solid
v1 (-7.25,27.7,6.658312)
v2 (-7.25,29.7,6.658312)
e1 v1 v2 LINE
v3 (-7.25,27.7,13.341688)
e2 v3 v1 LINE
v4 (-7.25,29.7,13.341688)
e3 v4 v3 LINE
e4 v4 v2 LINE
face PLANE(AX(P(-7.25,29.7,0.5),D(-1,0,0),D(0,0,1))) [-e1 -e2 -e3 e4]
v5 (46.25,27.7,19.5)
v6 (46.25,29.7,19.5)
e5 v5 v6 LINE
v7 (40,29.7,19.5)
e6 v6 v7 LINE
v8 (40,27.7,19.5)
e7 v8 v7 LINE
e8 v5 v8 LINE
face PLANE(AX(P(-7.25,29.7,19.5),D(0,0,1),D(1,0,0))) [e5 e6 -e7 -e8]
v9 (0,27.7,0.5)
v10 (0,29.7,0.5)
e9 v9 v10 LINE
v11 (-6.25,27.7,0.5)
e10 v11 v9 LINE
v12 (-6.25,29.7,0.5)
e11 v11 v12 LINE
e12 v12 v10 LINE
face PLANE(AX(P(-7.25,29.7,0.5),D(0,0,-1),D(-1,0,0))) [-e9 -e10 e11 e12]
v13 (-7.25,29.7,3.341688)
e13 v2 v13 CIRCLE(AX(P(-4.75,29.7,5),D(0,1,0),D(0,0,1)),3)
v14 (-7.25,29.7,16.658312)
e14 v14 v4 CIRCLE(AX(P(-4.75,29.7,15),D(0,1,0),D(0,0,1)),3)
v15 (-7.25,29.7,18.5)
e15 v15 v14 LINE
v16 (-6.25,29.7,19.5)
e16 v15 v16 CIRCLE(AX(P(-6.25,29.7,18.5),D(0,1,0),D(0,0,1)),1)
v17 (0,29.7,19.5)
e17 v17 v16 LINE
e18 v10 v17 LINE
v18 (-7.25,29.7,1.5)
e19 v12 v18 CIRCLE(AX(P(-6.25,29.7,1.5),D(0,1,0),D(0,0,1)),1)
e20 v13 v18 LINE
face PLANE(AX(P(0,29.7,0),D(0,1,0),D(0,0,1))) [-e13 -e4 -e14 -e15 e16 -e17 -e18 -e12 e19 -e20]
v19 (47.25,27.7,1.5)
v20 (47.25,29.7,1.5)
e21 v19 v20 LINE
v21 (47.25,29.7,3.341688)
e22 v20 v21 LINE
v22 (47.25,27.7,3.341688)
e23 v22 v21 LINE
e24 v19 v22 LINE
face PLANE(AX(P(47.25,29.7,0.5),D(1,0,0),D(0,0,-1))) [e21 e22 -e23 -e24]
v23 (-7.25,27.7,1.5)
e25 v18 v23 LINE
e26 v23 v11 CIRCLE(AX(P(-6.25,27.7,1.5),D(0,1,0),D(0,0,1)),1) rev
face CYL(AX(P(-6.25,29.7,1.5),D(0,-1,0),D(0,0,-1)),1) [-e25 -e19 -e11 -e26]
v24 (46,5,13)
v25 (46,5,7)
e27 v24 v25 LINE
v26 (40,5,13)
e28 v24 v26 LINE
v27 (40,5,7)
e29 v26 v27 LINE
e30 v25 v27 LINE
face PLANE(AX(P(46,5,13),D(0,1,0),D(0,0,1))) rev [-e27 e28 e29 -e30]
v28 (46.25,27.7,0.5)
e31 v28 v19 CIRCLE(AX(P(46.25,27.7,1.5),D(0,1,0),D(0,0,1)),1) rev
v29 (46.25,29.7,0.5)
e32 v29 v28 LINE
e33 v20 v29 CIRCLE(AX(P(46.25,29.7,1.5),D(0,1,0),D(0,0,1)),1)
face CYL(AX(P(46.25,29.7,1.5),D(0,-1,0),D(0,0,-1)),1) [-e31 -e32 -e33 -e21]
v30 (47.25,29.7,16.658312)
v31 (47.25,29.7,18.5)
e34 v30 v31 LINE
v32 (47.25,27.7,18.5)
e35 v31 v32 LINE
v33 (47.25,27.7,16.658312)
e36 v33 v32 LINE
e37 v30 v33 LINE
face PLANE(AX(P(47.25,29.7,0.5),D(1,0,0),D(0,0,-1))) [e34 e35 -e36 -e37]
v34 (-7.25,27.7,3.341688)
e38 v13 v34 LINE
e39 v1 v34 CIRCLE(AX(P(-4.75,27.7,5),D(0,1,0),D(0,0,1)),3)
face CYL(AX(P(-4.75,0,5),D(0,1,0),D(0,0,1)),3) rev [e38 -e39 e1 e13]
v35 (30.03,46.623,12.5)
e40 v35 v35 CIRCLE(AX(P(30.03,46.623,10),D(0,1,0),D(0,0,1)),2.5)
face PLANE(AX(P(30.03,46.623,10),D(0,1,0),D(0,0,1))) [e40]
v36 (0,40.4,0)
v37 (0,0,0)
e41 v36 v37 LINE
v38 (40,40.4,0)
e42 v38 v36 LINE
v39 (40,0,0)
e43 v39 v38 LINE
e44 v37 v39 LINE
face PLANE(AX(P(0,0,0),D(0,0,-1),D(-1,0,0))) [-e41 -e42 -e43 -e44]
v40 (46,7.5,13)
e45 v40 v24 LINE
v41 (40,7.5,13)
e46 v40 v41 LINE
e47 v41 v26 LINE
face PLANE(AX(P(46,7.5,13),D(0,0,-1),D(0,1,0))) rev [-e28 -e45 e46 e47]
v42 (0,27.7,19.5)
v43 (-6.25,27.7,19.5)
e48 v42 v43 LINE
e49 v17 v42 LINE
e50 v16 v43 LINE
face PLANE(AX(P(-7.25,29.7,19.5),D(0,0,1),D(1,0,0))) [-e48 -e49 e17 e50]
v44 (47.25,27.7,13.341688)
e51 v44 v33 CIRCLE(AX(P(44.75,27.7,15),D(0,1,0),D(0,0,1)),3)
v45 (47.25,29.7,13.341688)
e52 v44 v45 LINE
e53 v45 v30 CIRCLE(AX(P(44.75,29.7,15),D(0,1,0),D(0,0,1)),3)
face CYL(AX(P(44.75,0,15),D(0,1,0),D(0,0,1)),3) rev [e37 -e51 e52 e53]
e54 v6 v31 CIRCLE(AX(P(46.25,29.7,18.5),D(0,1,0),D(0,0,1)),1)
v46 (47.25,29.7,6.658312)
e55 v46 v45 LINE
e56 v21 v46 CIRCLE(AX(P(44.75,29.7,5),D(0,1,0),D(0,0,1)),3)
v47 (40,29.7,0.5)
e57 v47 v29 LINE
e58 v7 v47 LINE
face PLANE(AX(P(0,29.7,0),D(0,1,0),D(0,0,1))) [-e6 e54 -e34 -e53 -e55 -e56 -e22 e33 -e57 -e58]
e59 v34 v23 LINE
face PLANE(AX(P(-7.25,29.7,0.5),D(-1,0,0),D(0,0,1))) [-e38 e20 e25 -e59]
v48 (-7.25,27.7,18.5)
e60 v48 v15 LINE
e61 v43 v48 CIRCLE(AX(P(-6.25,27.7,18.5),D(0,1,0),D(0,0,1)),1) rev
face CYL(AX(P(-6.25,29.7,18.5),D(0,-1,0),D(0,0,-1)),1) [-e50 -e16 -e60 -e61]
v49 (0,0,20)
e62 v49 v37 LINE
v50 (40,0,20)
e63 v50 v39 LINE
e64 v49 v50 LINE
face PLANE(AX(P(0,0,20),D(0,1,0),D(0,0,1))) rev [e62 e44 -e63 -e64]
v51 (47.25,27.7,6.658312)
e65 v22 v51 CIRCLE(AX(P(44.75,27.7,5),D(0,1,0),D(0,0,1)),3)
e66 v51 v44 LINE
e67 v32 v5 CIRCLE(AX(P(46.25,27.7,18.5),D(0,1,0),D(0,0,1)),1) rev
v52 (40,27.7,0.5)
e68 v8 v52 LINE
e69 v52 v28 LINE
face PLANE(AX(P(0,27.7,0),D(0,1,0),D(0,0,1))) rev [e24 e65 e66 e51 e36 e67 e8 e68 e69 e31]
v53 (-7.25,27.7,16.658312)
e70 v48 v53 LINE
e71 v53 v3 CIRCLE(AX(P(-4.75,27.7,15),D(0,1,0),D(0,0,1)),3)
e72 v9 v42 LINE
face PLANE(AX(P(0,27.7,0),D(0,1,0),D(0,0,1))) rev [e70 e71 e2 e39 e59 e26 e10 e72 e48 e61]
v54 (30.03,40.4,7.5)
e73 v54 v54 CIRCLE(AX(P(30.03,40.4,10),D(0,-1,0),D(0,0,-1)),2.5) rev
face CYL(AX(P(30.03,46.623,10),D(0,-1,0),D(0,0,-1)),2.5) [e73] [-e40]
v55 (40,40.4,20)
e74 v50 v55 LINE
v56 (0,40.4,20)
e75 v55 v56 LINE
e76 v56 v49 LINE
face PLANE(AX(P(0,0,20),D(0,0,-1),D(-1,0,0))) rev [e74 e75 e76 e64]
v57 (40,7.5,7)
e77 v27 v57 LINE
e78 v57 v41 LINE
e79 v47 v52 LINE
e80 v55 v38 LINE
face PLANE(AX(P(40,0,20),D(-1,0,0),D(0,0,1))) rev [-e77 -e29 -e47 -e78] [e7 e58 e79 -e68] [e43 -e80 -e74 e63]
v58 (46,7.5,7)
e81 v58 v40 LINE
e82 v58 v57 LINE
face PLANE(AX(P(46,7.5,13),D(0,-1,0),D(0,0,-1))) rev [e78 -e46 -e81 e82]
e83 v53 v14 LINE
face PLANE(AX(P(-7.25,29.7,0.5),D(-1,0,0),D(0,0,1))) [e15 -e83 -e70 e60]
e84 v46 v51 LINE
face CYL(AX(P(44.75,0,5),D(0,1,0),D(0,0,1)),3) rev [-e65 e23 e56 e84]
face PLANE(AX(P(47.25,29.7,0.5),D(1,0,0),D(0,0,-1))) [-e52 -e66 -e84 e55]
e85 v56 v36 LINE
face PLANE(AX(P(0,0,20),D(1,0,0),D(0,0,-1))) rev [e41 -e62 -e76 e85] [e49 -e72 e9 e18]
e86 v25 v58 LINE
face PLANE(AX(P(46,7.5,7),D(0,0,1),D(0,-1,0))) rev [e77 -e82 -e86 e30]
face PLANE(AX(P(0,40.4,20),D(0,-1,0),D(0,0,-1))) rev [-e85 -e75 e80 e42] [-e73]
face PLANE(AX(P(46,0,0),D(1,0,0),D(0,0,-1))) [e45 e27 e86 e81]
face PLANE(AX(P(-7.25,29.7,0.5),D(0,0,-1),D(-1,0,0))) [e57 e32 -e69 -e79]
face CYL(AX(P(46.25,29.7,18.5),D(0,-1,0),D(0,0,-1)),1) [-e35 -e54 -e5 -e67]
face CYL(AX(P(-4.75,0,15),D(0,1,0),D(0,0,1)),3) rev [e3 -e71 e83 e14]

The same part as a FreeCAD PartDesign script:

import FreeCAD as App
import Part
import Sketcher

V = App.Vector
Q = App.Units.Quantity


def edges_at(feature, points):
    """Names of the edges that pass closest to the given points."""
    edges = feature.Shape.Edges
    near = lambda p: min(range(len(edges)), key=lambda i: edges[i].distToShape(Part.Vertex(*p))[0])
    return sorted({f"Edge{near(p) + 1}" for p in points})


def add_polygon(sketch, points):
    """Adds a closed chain of lines whose ends are joined by coincident constraints."""
    first, n = sketch.GeometryCount, len(points)
    for a, b in zip(points, points[1:] + points[:1]):
        sketch.addGeometry(Part.LineSegment(App.Vector(*a, 0), App.Vector(*b, 0)), False)
    for i in range(n):
        sketch.addConstraint(Sketcher.Constraint("Coincident", first + i, 2, first + (i + 1) % n, 1))

doc = App.newDocument("Part")
params = doc.addObject("Spreadsheet::Sheet", "Params")
for row, (alias, value) in enumerate([
    ("sketch1_width", "40 mm"),
    ("sketch1_height", "40.4 mm"),
    ("pad1_length", "20 mm"),
    ("sketch2_height", "19 mm"),
    ("sketch2_width", "54.5 mm"),
    ("pad2_length", "2 mm"),
    ("sketch3_diameter", "6 mm"),
    ("fillet_radius", "1 mm"),
    ("sketch4_diameter", "5 mm"),
    ("pad3_length", "6.223 mm"),
    ("sketch5_height", "6 mm"),
    ("sketch5_width", "2.5 mm"),
    ("pad4_length", "6 mm"),
], start=1):
    params.set(f"A{row}", alias)
    params.set(f"B{row}", "=" + value)
    params.setAlias(f"B{row}", alias)

body = doc.addObject("PartDesign::Body", "Body")

# Sketch on XY plane
sketch1 = doc.addObject("Sketcher::SketchObject", "Sketch")
body.addObject(sketch1)
sketch1.AttachmentSupport = (doc.XY_Plane, [""])
sketch1.MapMode = "FlatFace"
add_polygon(sketch1, [(0, 40.4), (0, 0), (40, 0), (40, 40.4)])  # lines 0-3
sketch1.addConstraint([
    Sketcher.Constraint("Vertical", 0),
    Sketcher.Constraint("Horizontal", 1),
    Sketcher.Constraint("Vertical", 2),
    Sketcher.Constraint("Horizontal", 3),
    Sketcher.Constraint("Coincident", 0, 2, -1, 1),
    Sketcher.Constraint("DistanceX", 1, 1, 1, 2, Q("40 mm")),
    Sketcher.Constraint("DistanceY", 0, 2, 0, 1, Q("40.4 mm")),
])
sketch1.setExpression("Constraints[9]", "Params.sketch1_width")
sketch1.setExpression("Constraints[10]", "Params.sketch1_height")
pad1 = doc.addObject("PartDesign::Pad", "Pad")
body.addObject(pad1)
pad1.Profile = sketch1
pad1.setExpression("Length", "Params.pad1_length")

# Sketch on XZ plane
sketch2 = doc.addObject("Sketcher::SketchObject", "Sketch001")
body.addObject(sketch2)
sketch2.AttachmentSupport = (doc.XZ_Plane, [""])
sketch2.MapMode = "FlatFace"
sketch2.AttachmentOffset = App.Placement(V(0, 0, -27.7), App.Rotation())
add_polygon(sketch2, [(47.25, 0.5), (47.25, 19.5), (-7.25, 19.5), (-7.25, 0.5)])  # lines 0-3
sketch2.addConstraint([
    Sketcher.Constraint("Vertical", 0),
    Sketcher.Constraint("Horizontal", 1),
    Sketcher.Constraint("Vertical", 2),
    Sketcher.Constraint("Horizontal", 3),
    Sketcher.Constraint("DistanceY", 0, 1, 0, 2, Q("19 mm")),
    Sketcher.Constraint("DistanceX", 1, 2, 1, 1, Q("54.5 mm")),
    Sketcher.Constraint("DistanceY", -1, 1, 0, 2, Q("19.5 mm")),
    Sketcher.Constraint("DistanceX", -1, 1, 0, 2, Q("47.25 mm")),
])
sketch2.setExpression("Constraints[8]", "Params.sketch2_height")
sketch2.setExpression("Constraints[9]", "Params.sketch2_width")
pad2 = doc.addObject("PartDesign::Pad", "Pad001")
body.addObject(pad2)
pad2.Profile = sketch2
pad2.setExpression("Length", "Params.pad2_length")
pad2.Reversed = True

# Sketch on XZ plane
sketch3 = doc.addObject("Sketcher::SketchObject", "Sketch002")
body.addObject(sketch3)
sketch3.AttachmentSupport = (doc.XZ_Plane, [""])
sketch3.MapMode = "FlatFace"
sketch3.AttachmentOffset = App.Placement(V(0, 0, -29.7), App.Rotation())
sketch3.addGeometry([
    Part.Circle(V(-4.75, 15, 0), V(0, 0, 1), 3),
    Part.Circle(V(-4.75, 5, 0), V(0, 0, 1), 3),
    Part.Circle(V(44.75, 5, 0), V(0, 0, 1), 3),
    Part.Circle(V(44.75, 15, 0), V(0, 0, 1), 3),
], False)
sketch3.addConstraint([
    Sketcher.Constraint("Equal", 0, 1),
    Sketcher.Constraint("Equal", 1, 2),
    Sketcher.Constraint("Equal", 2, 3),
    Sketcher.Constraint("Horizontal", 1, 3, 2, 3),
    Sketcher.Constraint("Horizontal", 0, 3, 3, 3),
    Sketcher.Constraint("Vertical", 0, 3, 1, 3),
    Sketcher.Constraint("Vertical", 2, 3, 3, 3),
    Sketcher.Constraint("Diameter", 0, Q("6 mm")),
    Sketcher.Constraint("DistanceY", -1, 1, 0, 3, Q("15 mm")),
    Sketcher.Constraint("DistanceY", -1, 1, 1, 3, Q("5 mm")),
    Sketcher.Constraint("DistanceX", 1, 3, 2, 3, Q("49.5 mm")),
    Sketcher.Constraint("DistanceX", 0, 3, -1, 1, Q("4.75 mm")),
])
sketch3.setExpression("Constraints[7]", "Params.sketch3_diameter")
pocket1 = doc.addObject("PartDesign::Pocket", "Pocket")
body.addObject(pocket1)
pocket1.Profile = sketch3
pocket1.Type = "ThroughAll"
pocket1.Reversed = True
doc.recompute()

fillet = doc.addObject("PartDesign::Fillet", "Fillet")
body.addObject(fillet)
fillet.Base = (pocket1, edges_at(pocket1, [
    (-7.25, 28.7, 19.5),
    (47.25, 28.7, 0.5),
    (-7.25, 28.7, 0.5),
    (47.25, 28.7, 19.5),
]))
fillet.setExpression("Radius", "Params.fillet_radius")

# Sketch on XZ plane
sketch4 = doc.addObject("Sketcher::SketchObject", "Sketch003")
body.addObject(sketch4)
sketch4.AttachmentSupport = (doc.XZ_Plane, [""])
sketch4.MapMode = "FlatFace"
sketch4.AttachmentOffset = App.Placement(V(0, 0, -40.4), App.Rotation())
sketch4.addGeometry(Part.Circle(V(30.03, 10, 0), V(0, 0, 1), 2.5), False)
sketch4.addConstraint([
    Sketcher.Constraint("Diameter", 0, Q("5 mm")),
    Sketcher.Constraint("DistanceY", -1, 1, 0, 3, Q("10 mm")),
    Sketcher.Constraint("DistanceX", -1, 1, 0, 3, Q("30.03 mm")),
])
sketch4.setExpression("Constraints[0]", "Params.sketch4_diameter")
pad3 = doc.addObject("PartDesign::Pad", "Pad002")
body.addObject(pad3)
pad3.Profile = sketch4
pad3.setExpression("Length", "Params.pad3_length")
pad3.Reversed = True

# Sketch on YZ plane
sketch5 = doc.addObject("Sketcher::SketchObject", "Sketch004")
body.addObject(sketch5)
sketch5.AttachmentSupport = (doc.YZ_Plane, [""])
sketch5.MapMode = "FlatFace"
sketch5.AttachmentOffset = App.Placement(V(0, 0, 40), App.Rotation())
add_polygon(sketch5, [(7.5, 13), (5, 13), (5, 7), (7.5, 7)])  # lines 0-3
sketch5.addConstraint([
    Sketcher.Constraint("Horizontal", 0),
    Sketcher.Constraint("Vertical", 1),
    Sketcher.Constraint("Horizontal", 2),
    Sketcher.Constraint("Vertical", 3),
    Sketcher.Constraint("DistanceY", 1, 2, 1, 1, Q("6 mm")),
    Sketcher.Constraint("DistanceX", 0, 2, 0, 1, Q("2.5 mm")),
    Sketcher.Constraint("DistanceX", -1, 1, 0, 2, Q("5 mm")),
    Sketcher.Constraint("DistanceY", -1, 1, 0, 2, Q("13 mm")),
])
sketch5.setExpression("Constraints[8]", "Params.sketch5_height")
sketch5.setExpression("Constraints[9]", "Params.sketch5_width")
pad4 = doc.addObject("PartDesign::Pad", "Pad003")
body.addObject(pad4)
pad4.Profile = sketch5
pad4.setExpression("Length", "Params.pad4_length")

doc.recompute()
